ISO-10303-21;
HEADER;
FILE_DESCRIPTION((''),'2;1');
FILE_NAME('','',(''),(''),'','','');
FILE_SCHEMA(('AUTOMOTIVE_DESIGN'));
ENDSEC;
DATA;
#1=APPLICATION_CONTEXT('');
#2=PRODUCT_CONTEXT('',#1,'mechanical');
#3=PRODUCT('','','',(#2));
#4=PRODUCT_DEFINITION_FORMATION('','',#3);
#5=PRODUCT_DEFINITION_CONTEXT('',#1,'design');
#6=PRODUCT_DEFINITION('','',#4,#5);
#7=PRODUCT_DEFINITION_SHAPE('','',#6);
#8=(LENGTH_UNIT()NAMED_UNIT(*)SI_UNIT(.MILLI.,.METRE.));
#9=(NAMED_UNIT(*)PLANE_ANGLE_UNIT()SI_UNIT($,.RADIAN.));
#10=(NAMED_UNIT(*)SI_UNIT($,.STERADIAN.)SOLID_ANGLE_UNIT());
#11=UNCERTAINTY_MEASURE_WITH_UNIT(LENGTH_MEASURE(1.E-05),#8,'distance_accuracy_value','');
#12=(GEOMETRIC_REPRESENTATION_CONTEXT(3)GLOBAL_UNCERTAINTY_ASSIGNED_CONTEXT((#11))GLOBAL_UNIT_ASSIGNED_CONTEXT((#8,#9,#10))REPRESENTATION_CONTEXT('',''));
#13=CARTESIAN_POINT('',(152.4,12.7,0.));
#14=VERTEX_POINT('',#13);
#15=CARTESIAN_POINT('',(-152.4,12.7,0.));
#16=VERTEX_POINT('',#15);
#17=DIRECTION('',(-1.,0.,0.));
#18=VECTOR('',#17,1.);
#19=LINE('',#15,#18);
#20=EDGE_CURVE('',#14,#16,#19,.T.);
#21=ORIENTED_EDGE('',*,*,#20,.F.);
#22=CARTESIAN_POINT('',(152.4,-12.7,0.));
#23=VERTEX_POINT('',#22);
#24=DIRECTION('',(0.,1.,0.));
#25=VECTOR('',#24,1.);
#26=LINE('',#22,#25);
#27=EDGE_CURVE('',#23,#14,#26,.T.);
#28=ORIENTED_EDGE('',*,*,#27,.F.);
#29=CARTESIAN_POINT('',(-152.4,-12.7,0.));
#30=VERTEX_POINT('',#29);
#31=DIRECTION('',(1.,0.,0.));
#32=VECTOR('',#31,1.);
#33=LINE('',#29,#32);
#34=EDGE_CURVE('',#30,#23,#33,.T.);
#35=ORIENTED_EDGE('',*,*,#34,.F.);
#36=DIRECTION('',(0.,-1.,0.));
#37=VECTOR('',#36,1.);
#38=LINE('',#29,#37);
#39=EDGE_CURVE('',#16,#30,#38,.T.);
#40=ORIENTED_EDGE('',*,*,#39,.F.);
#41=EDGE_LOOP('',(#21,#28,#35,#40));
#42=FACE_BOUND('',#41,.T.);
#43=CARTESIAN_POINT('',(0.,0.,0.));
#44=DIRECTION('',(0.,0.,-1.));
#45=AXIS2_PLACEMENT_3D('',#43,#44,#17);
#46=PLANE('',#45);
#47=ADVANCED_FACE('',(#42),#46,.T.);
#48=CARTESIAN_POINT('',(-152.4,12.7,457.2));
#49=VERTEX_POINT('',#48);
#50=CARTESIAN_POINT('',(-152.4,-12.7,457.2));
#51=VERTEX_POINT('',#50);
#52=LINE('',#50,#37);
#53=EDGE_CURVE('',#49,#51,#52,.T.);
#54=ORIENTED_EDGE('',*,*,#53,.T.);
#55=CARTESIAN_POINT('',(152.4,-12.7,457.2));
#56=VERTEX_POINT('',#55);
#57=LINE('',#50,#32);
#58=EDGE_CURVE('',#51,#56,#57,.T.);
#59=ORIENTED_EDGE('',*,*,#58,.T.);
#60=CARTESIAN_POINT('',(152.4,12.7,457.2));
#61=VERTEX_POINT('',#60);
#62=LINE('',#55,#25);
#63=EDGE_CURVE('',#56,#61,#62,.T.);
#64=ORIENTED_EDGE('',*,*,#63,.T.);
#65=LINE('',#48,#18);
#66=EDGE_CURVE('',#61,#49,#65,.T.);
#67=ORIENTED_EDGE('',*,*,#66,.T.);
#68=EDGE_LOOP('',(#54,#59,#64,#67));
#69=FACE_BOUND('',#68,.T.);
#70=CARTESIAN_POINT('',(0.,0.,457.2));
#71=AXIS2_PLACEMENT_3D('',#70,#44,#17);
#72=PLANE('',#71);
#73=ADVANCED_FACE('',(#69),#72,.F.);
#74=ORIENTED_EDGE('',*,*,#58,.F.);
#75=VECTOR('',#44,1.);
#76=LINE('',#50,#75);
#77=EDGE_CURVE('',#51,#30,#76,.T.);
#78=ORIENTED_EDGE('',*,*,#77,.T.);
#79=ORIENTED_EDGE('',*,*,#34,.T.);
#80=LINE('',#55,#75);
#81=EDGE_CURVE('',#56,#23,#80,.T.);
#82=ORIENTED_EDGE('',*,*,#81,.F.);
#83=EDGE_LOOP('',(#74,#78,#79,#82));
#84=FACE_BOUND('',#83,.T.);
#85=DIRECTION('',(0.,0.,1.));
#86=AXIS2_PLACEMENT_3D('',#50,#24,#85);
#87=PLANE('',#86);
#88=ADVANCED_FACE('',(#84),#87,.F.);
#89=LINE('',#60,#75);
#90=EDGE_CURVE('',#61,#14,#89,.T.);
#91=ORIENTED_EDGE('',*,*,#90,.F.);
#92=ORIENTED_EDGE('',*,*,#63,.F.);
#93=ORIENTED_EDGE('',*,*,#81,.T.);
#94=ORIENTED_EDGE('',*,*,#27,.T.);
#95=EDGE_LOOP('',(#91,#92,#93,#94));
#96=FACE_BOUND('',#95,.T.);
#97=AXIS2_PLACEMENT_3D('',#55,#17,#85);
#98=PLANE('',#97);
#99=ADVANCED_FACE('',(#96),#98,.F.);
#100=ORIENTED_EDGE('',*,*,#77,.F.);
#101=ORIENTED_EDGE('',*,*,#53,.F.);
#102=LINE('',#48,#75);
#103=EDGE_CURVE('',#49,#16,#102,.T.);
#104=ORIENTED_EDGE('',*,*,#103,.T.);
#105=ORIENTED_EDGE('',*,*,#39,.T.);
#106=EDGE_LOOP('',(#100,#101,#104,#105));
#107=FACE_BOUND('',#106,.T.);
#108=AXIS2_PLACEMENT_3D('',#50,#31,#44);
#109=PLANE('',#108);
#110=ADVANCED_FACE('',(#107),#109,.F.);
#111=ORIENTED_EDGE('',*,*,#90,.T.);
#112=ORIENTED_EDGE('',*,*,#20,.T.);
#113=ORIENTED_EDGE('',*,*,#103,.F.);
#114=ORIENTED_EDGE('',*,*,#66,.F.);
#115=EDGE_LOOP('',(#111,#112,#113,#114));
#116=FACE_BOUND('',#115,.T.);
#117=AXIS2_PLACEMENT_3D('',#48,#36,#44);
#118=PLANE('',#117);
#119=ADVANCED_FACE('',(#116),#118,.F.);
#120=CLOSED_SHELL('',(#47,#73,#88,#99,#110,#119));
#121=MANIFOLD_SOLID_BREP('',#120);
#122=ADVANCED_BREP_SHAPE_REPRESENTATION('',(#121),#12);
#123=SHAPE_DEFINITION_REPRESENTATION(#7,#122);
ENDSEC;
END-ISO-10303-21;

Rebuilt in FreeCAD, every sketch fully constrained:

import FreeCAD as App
import Part
import Sketcher
from FreeCAD import Vector
Q = App.Units.Quantity


def add_polygon(sketch, points):
    """Adds a closed chain of lines whose ends are joined by coincident constraints."""
    first, n = sketch.GeometryCount, len(points)
    for a, b in zip(points, points[1:] + points[:1]):
        sketch.addGeometry(Part.LineSegment(App.Vector(*a, 0), App.Vector(*b, 0)), False)
    for i in range(n):
        sketch.addConstraint(Sketcher.Constraint("Coincident", first + i, 2, first + (i + 1) % n, 1))

doc = App.newDocument("Part")
params = doc.addObject("Spreadsheet::Sheet", "Params")
for row, (alias, value) in enumerate([
    ("sketch1_width", "12 in"),
    ("sketch1_height", "1 in"),
    ("pad1_length", "18 in"),
], start=1):
    params.set(f"A{row}", alias)
    params.set(f"B{row}", "=" + value)
    params.setAlias(f"B{row}", alias)

body = doc.addObject("PartDesign::Body", "Body")

# Sketch on XY plane
sketch1 = body.newObject("Sketcher::SketchObject", "Sketch")
sketch1.AttachmentSupport = (doc.getObject("XY_Plane"), [""])
sketch1.MapMode = "FlatFace"
add_polygon(sketch1, [(-152.4, 12.7), (-152.4, -12.7), (152.4, -12.7), (152.4, 12.7)])  # lines 0-3
sketch1.addConstraint([
    Sketcher.Constraint("Vertical", 0),
    Sketcher.Constraint("Horizontal", 1),
    Sketcher.Constraint("Vertical", 2),
    Sketcher.Constraint("Horizontal", 3),
    Sketcher.Constraint("Symmetric", 0, 2, 2, 2, -1, 1),
    Sketcher.Constraint("DistanceX", 1, 1, 1, 2, Q("12 in")),
    Sketcher.Constraint("DistanceY", 0, 2, 0, 1, Q("1 in")),
])
sketch1.setExpression("Constraints[9]", "Params.sketch1_width")
sketch1.setExpression("Constraints[10]", "Params.sketch1_height")
pad1 = body.newObject("PartDesign::Pad", "Pad")
pad1.Profile = sketch1
pad1.setExpression("Length", "Params.pad1_length")

doc.recompute()
